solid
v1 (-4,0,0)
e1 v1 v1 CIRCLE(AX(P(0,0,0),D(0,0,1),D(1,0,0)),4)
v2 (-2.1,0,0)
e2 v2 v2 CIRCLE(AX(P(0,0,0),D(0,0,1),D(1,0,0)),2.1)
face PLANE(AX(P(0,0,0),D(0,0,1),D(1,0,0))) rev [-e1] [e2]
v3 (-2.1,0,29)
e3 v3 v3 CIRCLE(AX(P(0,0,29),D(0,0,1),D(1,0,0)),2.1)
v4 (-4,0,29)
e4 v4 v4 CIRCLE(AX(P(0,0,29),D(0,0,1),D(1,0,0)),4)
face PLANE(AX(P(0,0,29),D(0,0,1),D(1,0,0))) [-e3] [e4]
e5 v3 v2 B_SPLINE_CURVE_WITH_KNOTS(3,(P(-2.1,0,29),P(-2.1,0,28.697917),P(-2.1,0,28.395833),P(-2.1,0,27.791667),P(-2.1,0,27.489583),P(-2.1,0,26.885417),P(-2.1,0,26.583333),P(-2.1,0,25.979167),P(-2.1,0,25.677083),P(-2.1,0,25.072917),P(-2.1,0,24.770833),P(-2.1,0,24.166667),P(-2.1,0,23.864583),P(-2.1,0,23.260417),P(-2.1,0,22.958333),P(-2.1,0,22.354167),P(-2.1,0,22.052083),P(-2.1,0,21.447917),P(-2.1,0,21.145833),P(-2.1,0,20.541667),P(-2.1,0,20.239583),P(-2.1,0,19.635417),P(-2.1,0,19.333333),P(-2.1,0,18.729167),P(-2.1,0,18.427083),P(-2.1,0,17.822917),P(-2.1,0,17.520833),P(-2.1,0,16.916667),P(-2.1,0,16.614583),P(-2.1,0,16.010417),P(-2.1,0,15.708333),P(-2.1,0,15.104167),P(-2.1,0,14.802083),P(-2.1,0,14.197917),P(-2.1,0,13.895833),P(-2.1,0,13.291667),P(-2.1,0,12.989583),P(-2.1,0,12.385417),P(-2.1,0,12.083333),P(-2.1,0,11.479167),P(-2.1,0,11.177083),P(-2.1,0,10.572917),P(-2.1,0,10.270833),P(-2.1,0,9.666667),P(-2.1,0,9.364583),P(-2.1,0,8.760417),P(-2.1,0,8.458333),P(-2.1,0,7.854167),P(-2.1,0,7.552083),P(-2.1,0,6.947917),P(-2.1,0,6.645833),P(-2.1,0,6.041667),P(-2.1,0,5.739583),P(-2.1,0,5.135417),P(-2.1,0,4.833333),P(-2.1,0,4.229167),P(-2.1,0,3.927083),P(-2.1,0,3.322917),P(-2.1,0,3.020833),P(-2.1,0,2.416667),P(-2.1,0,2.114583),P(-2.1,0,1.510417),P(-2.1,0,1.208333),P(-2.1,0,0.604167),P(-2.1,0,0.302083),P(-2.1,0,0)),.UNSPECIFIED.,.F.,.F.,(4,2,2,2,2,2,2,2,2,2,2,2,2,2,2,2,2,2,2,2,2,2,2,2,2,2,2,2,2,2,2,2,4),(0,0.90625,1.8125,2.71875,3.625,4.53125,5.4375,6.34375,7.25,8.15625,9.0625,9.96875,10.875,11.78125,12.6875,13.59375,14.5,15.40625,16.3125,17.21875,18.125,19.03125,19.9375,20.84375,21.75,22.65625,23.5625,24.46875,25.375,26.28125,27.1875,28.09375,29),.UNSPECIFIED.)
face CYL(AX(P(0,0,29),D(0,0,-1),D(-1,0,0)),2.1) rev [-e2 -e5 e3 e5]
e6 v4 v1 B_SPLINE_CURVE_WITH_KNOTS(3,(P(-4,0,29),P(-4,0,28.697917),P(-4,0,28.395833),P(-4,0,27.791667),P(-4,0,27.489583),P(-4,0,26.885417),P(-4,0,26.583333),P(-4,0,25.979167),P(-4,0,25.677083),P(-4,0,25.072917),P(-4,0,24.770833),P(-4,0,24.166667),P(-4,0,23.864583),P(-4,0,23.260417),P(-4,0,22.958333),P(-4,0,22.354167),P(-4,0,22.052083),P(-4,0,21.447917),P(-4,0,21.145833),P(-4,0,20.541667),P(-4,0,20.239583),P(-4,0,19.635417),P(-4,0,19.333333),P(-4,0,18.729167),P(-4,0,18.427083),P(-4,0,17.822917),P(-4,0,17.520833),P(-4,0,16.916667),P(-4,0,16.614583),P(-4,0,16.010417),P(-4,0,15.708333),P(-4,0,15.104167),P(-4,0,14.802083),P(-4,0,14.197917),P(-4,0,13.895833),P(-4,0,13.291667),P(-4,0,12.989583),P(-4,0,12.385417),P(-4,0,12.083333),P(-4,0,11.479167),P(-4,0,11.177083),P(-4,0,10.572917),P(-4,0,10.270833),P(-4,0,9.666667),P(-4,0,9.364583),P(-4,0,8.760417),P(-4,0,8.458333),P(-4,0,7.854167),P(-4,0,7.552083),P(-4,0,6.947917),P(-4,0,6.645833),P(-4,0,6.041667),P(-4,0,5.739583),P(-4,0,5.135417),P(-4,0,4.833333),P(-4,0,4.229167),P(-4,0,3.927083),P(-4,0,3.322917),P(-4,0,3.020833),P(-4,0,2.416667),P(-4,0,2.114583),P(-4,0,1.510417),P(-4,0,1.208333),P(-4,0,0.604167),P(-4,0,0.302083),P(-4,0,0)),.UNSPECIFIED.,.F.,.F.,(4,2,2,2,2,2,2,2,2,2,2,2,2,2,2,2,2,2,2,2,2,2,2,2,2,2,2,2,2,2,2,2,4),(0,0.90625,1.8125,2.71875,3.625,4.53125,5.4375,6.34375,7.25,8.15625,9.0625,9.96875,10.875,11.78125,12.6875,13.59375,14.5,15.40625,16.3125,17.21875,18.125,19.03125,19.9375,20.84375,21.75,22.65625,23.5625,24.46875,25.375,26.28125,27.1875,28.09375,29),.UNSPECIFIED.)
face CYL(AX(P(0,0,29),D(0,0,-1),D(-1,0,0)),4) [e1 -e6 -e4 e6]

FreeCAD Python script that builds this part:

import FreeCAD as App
import Part
import Sketcher
Q = App.Units.Quantity

doc = App.newDocument("Part")
body = doc.addObject("PartDesign::Body", "Body")

# Sketch on XY plane
sketch1 = body.newObject("Sketcher::SketchObject", "Sketch")
sketch1.AttachmentSupport = (doc.getObject("XY_Plane"), [""])
sketch1.MapMode = "FlatFace"
sketch1.addGeometry([
    Part.Circle(App.Vector(0, 0, 0), App.Vector(0, 0, 1), 4),
    Part.Circle(App.Vector(0, 0, 0), App.Vector(0, 0, 1), 2.1),
], False)
sketch1.addConstraint([
    Sketcher.Constraint("Coincident", 0, 3, -1, 1),
    Sketcher.Constraint("Coincident", 1, 3, -1, 1),
    Sketcher.Constraint("Diameter", 0, Q("8 mm")),
    Sketcher.Constraint("Diameter", 1, Q("4.2 mm")),
])
pad1 = body.newObject("PartDesign::Pad", "Pad")
pad1.Profile = sketch1
pad1.Length = 29

doc.recompute()
